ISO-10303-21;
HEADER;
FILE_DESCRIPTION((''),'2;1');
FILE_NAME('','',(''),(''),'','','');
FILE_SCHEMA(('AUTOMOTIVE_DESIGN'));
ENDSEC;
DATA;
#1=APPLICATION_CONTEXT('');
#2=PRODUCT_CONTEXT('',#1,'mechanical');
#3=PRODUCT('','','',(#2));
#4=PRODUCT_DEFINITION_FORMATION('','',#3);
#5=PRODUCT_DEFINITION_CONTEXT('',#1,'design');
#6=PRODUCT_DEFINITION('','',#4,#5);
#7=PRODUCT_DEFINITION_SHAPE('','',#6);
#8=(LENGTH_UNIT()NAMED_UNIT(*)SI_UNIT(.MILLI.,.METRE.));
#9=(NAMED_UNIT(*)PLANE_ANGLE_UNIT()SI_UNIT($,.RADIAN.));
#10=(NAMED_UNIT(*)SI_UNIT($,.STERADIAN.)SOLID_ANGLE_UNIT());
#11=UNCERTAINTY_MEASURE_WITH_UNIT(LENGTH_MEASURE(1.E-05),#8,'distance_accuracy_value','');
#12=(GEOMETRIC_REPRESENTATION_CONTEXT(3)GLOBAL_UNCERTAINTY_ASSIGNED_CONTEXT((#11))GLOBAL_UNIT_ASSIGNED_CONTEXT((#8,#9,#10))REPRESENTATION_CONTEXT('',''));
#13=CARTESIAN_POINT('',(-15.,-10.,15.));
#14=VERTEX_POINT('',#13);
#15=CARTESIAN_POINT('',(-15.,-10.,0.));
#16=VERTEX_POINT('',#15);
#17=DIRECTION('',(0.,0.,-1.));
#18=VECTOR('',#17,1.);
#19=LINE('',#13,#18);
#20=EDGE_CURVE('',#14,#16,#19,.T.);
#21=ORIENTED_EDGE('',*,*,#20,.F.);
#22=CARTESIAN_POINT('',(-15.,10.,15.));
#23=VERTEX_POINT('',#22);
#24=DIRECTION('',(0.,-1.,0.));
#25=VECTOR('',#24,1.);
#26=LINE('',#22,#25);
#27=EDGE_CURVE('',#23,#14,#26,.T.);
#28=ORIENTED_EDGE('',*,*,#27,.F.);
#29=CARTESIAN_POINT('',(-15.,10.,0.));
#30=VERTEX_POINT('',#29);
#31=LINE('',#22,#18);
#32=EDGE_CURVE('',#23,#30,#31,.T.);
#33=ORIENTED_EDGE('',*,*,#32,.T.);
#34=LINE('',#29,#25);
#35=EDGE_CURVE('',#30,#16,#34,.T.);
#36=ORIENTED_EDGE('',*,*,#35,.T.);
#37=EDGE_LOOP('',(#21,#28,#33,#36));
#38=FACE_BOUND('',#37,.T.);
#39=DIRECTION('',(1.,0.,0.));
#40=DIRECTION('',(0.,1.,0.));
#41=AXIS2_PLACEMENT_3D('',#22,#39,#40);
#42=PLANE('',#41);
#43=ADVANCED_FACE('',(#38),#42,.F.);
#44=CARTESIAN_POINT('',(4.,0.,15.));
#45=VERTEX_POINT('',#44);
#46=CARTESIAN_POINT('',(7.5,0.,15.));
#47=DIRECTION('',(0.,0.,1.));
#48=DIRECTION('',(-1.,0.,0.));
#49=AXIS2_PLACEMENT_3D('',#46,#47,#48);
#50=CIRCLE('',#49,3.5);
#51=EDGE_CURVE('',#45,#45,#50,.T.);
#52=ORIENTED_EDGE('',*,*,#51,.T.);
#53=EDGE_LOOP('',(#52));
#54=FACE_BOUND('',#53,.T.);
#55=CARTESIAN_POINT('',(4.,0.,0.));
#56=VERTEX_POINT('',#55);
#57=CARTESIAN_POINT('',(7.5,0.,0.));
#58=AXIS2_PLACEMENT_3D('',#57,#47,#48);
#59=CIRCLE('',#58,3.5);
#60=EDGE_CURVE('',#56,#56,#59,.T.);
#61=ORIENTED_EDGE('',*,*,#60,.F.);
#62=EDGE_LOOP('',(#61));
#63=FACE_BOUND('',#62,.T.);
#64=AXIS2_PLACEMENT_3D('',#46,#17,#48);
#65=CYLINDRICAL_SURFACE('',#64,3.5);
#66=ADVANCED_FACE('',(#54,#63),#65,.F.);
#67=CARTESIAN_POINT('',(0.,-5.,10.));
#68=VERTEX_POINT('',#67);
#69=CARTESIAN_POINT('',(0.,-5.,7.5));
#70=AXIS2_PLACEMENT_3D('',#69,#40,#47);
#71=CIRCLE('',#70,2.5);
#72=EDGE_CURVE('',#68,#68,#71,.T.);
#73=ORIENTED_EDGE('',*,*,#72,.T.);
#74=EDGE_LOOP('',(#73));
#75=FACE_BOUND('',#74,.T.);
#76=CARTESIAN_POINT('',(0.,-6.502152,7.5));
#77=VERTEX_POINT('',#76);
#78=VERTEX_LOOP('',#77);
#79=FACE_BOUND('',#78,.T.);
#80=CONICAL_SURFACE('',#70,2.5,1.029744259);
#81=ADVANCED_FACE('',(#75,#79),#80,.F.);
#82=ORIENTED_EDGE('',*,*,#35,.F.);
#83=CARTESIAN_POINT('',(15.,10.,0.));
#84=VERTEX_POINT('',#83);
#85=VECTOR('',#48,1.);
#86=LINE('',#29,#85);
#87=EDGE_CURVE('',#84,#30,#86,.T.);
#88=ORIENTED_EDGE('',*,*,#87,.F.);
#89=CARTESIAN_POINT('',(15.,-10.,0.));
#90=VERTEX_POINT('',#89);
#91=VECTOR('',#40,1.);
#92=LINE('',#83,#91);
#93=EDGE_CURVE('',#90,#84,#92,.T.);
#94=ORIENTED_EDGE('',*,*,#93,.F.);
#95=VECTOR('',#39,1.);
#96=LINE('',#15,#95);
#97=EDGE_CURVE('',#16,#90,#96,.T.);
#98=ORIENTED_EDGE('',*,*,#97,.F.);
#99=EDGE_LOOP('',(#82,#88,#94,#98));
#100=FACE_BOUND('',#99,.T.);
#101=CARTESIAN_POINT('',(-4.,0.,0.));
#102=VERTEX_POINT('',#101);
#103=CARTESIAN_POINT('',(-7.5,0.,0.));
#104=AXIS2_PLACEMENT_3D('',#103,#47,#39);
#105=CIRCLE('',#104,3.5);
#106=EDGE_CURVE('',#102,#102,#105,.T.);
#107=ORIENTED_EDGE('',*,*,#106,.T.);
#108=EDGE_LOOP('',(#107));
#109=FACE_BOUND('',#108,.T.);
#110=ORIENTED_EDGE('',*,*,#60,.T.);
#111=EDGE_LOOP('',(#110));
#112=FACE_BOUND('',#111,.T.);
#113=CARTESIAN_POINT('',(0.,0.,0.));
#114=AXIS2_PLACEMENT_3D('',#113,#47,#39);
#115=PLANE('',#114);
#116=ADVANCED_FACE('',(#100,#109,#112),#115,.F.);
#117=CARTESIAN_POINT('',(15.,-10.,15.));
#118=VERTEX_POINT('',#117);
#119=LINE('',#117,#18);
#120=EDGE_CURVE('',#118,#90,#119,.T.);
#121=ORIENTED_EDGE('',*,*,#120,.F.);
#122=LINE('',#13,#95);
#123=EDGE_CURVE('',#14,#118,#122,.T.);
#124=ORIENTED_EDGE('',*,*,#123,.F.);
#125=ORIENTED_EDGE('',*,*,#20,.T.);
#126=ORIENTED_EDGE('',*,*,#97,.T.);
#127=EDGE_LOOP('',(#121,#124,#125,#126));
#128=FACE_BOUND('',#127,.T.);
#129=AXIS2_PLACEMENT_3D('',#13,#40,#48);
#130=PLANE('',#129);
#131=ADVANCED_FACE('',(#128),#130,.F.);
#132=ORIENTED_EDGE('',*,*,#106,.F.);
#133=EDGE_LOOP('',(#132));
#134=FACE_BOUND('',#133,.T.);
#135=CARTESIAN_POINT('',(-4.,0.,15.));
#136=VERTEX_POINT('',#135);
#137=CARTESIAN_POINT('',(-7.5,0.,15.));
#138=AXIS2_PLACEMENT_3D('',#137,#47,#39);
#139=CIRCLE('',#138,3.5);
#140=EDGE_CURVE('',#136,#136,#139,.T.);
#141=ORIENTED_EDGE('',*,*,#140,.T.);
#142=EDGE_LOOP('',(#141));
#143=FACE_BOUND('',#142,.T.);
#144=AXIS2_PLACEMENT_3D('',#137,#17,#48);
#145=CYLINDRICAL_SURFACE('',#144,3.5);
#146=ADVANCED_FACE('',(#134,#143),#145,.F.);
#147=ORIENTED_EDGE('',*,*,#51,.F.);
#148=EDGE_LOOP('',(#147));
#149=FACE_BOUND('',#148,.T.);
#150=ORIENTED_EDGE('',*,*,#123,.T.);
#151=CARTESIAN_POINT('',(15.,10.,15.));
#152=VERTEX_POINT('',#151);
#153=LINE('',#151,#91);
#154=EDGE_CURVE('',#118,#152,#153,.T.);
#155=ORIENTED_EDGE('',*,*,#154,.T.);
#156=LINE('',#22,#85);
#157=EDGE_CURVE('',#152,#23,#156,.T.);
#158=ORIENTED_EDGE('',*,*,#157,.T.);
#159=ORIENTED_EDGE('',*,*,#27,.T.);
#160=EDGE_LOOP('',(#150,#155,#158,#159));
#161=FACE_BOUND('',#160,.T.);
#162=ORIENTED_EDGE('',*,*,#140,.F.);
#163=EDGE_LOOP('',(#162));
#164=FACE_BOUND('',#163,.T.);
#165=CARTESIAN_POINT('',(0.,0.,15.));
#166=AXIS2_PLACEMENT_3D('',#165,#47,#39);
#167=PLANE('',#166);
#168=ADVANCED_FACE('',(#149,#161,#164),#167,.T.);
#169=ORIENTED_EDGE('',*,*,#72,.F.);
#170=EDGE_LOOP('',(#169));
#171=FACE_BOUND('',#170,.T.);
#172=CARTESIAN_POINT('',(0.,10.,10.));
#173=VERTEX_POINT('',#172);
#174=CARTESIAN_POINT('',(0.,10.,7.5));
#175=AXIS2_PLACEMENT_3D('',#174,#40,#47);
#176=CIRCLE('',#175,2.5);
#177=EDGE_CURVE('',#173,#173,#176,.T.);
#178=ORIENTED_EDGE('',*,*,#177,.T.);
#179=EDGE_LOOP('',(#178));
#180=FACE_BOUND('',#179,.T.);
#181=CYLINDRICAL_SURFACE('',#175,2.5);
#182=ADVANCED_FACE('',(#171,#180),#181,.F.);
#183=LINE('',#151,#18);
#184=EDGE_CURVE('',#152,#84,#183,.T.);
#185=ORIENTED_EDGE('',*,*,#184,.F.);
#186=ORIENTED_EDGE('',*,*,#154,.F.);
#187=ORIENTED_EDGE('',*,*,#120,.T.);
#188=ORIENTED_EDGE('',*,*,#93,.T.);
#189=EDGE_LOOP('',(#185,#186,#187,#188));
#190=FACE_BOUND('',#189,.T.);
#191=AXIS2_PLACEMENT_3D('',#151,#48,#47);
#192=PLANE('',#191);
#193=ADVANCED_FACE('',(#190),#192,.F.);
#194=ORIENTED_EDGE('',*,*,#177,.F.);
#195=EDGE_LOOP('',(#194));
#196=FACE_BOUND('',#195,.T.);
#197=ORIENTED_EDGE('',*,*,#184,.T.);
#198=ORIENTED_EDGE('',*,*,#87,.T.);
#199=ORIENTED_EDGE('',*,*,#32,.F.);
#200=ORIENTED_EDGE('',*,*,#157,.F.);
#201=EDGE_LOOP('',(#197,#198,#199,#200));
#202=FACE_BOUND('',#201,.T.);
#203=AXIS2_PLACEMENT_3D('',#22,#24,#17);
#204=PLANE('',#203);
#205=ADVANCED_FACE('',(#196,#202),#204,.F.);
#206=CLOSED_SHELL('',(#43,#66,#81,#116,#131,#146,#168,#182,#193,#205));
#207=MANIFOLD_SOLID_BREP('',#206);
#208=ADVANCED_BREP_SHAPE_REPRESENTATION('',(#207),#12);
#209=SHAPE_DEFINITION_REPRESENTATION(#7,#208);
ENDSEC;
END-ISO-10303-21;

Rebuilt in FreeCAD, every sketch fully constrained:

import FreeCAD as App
import Part
import Sketcher
from FreeCAD import Vector
Q = App.Units.Quantity


def add_polygon(sketch, points):
    """Adds a closed chain of lines whose ends are joined by coincident constraints."""
    first, n = sketch.GeometryCount, len(points)
    for a, b in zip(points, points[1:] + points[:1]):
        sketch.addGeometry(Part.LineSegment(App.Vector(*a, 0), App.Vector(*b, 0)), False)
    for i in range(n):
        sketch.addConstraint(Sketcher.Constraint("Coincident", first + i, 2, first + (i + 1) % n, 1))

doc = App.newDocument("Part")
params = doc.addObject("Spreadsheet::Sheet", "Params")
for row, (alias, value) in enumerate([
    ("sketch1_diameter", "7 mm"),
    ("sketch1_width", "30 mm"),
    ("sketch1_height", "20 mm"),
    ("pad1_length", "15 mm"),
    ("sketch2_diameter", "5 mm"),
    ("hole_diameter", "5 mm"),
    ("hole_depth", "15 mm"),
], start=1):
    params.set(f"A{row}", alias)
    params.set(f"B{row}", "=" + value)
    params.setAlias(f"B{row}", alias)

body = doc.addObject("PartDesign::Body", "Body")

# Sketch on XY plane
sketch1 = doc.addObject("Sketcher::SketchObject", "Sketch")
body.addObject(sketch1)
sketch1.AttachmentSupport = (doc.XY_Plane, [""])
sketch1.MapMode = "FlatFace"
add_polygon(sketch1, [(-15, 10), (-15, -10), (15, -10), (15, 10)])  # lines 0-3
sketch1.addGeometry(Part.Circle(Vector(-7.5, 0, 0), Vector(0, 0, 1), 3.5), False)  # 4
sketch1.addGeometry(Part.Circle(Vector(7.5, 0, 0), Vector(0, 0, 1), 3.5), False)  # 5
sketch1.addConstraint([
    Sketcher.Constraint("Vertical", 0),
    Sketcher.Constraint("Horizontal", 1),
    Sketcher.Constraint("Vertical", 2),
    Sketcher.Constraint("Horizontal", 3),
    Sketcher.Constraint("Equal", 4, 5),
    Sketcher.Constraint("Symmetric", 4, 3, 5, 3, -1, 1),
    Sketcher.Constraint("Symmetric", 0, 2, 2, 2, -1, 1),
    Sketcher.Constraint("PointOnObject", 4, 3, -1),
    Sketcher.Constraint("Diameter", 4, Q("7 mm")),
    Sketcher.Constraint("DistanceX", 1, 1, 1, 2, Q("30 mm")),
    Sketcher.Constraint("DistanceY", 0, 2, 0, 1, Q("20 mm")),
    Sketcher.Constraint("DistanceX", 4, 3, 5, 3, Q("15 mm")),
])
sketch1.setExpression("Constraints[12]", "Params.sketch1_diameter")
sketch1.setExpression("Constraints[13]", "Params.sketch1_width")
sketch1.setExpression("Constraints[14]", "Params.sketch1_height")
pad1 = doc.addObject("PartDesign::Pad", "Pad")
body.addObject(pad1)
pad1.Profile = sketch1
pad1.setExpression("Length", "Params.pad1_length")

# Sketch on XZ plane
sketch2 = doc.addObject("Sketcher::SketchObject", "Sketch001")
body.addObject(sketch2)
sketch2.AttachmentSupport = (doc.XZ_Plane, [""])
sketch2.MapMode = "FlatFace"
sketch2.AttachmentOffset = App.Placement(Vector(0, 0, -10), App.Rotation())
sketch2.addGeometry(Part.Circle(Vector(0, 7.5, 0), Vector(0, 0, 1), 2.5), False)
sketch2.addConstraint([
    Sketcher.Constraint("PointOnObject", 0, 3, -2),
    Sketcher.Constraint("Diameter", 0, Q("5 mm")),
    Sketcher.Constraint("DistanceY", -1, 1, 0, 3, Q("7.5 mm")),
])
sketch2.setExpression("Constraints[1]", "Params.sketch2_diameter")
doc.recompute()
hole = doc.addObject("PartDesign::Hole", "Hole")
body.addObject(hole)
hole.Profile = sketch2
hole.ThreadType = "None"
hole.setExpression("Diameter", "Params.hole_diameter")
hole.DepthType = "Dimension"
hole.setExpression("Depth", "Params.hole_depth")
hole.DrillPoint = "Angled"
hole.DrillPointAngle = 118
hole.Reversed = True

doc.recompute()
